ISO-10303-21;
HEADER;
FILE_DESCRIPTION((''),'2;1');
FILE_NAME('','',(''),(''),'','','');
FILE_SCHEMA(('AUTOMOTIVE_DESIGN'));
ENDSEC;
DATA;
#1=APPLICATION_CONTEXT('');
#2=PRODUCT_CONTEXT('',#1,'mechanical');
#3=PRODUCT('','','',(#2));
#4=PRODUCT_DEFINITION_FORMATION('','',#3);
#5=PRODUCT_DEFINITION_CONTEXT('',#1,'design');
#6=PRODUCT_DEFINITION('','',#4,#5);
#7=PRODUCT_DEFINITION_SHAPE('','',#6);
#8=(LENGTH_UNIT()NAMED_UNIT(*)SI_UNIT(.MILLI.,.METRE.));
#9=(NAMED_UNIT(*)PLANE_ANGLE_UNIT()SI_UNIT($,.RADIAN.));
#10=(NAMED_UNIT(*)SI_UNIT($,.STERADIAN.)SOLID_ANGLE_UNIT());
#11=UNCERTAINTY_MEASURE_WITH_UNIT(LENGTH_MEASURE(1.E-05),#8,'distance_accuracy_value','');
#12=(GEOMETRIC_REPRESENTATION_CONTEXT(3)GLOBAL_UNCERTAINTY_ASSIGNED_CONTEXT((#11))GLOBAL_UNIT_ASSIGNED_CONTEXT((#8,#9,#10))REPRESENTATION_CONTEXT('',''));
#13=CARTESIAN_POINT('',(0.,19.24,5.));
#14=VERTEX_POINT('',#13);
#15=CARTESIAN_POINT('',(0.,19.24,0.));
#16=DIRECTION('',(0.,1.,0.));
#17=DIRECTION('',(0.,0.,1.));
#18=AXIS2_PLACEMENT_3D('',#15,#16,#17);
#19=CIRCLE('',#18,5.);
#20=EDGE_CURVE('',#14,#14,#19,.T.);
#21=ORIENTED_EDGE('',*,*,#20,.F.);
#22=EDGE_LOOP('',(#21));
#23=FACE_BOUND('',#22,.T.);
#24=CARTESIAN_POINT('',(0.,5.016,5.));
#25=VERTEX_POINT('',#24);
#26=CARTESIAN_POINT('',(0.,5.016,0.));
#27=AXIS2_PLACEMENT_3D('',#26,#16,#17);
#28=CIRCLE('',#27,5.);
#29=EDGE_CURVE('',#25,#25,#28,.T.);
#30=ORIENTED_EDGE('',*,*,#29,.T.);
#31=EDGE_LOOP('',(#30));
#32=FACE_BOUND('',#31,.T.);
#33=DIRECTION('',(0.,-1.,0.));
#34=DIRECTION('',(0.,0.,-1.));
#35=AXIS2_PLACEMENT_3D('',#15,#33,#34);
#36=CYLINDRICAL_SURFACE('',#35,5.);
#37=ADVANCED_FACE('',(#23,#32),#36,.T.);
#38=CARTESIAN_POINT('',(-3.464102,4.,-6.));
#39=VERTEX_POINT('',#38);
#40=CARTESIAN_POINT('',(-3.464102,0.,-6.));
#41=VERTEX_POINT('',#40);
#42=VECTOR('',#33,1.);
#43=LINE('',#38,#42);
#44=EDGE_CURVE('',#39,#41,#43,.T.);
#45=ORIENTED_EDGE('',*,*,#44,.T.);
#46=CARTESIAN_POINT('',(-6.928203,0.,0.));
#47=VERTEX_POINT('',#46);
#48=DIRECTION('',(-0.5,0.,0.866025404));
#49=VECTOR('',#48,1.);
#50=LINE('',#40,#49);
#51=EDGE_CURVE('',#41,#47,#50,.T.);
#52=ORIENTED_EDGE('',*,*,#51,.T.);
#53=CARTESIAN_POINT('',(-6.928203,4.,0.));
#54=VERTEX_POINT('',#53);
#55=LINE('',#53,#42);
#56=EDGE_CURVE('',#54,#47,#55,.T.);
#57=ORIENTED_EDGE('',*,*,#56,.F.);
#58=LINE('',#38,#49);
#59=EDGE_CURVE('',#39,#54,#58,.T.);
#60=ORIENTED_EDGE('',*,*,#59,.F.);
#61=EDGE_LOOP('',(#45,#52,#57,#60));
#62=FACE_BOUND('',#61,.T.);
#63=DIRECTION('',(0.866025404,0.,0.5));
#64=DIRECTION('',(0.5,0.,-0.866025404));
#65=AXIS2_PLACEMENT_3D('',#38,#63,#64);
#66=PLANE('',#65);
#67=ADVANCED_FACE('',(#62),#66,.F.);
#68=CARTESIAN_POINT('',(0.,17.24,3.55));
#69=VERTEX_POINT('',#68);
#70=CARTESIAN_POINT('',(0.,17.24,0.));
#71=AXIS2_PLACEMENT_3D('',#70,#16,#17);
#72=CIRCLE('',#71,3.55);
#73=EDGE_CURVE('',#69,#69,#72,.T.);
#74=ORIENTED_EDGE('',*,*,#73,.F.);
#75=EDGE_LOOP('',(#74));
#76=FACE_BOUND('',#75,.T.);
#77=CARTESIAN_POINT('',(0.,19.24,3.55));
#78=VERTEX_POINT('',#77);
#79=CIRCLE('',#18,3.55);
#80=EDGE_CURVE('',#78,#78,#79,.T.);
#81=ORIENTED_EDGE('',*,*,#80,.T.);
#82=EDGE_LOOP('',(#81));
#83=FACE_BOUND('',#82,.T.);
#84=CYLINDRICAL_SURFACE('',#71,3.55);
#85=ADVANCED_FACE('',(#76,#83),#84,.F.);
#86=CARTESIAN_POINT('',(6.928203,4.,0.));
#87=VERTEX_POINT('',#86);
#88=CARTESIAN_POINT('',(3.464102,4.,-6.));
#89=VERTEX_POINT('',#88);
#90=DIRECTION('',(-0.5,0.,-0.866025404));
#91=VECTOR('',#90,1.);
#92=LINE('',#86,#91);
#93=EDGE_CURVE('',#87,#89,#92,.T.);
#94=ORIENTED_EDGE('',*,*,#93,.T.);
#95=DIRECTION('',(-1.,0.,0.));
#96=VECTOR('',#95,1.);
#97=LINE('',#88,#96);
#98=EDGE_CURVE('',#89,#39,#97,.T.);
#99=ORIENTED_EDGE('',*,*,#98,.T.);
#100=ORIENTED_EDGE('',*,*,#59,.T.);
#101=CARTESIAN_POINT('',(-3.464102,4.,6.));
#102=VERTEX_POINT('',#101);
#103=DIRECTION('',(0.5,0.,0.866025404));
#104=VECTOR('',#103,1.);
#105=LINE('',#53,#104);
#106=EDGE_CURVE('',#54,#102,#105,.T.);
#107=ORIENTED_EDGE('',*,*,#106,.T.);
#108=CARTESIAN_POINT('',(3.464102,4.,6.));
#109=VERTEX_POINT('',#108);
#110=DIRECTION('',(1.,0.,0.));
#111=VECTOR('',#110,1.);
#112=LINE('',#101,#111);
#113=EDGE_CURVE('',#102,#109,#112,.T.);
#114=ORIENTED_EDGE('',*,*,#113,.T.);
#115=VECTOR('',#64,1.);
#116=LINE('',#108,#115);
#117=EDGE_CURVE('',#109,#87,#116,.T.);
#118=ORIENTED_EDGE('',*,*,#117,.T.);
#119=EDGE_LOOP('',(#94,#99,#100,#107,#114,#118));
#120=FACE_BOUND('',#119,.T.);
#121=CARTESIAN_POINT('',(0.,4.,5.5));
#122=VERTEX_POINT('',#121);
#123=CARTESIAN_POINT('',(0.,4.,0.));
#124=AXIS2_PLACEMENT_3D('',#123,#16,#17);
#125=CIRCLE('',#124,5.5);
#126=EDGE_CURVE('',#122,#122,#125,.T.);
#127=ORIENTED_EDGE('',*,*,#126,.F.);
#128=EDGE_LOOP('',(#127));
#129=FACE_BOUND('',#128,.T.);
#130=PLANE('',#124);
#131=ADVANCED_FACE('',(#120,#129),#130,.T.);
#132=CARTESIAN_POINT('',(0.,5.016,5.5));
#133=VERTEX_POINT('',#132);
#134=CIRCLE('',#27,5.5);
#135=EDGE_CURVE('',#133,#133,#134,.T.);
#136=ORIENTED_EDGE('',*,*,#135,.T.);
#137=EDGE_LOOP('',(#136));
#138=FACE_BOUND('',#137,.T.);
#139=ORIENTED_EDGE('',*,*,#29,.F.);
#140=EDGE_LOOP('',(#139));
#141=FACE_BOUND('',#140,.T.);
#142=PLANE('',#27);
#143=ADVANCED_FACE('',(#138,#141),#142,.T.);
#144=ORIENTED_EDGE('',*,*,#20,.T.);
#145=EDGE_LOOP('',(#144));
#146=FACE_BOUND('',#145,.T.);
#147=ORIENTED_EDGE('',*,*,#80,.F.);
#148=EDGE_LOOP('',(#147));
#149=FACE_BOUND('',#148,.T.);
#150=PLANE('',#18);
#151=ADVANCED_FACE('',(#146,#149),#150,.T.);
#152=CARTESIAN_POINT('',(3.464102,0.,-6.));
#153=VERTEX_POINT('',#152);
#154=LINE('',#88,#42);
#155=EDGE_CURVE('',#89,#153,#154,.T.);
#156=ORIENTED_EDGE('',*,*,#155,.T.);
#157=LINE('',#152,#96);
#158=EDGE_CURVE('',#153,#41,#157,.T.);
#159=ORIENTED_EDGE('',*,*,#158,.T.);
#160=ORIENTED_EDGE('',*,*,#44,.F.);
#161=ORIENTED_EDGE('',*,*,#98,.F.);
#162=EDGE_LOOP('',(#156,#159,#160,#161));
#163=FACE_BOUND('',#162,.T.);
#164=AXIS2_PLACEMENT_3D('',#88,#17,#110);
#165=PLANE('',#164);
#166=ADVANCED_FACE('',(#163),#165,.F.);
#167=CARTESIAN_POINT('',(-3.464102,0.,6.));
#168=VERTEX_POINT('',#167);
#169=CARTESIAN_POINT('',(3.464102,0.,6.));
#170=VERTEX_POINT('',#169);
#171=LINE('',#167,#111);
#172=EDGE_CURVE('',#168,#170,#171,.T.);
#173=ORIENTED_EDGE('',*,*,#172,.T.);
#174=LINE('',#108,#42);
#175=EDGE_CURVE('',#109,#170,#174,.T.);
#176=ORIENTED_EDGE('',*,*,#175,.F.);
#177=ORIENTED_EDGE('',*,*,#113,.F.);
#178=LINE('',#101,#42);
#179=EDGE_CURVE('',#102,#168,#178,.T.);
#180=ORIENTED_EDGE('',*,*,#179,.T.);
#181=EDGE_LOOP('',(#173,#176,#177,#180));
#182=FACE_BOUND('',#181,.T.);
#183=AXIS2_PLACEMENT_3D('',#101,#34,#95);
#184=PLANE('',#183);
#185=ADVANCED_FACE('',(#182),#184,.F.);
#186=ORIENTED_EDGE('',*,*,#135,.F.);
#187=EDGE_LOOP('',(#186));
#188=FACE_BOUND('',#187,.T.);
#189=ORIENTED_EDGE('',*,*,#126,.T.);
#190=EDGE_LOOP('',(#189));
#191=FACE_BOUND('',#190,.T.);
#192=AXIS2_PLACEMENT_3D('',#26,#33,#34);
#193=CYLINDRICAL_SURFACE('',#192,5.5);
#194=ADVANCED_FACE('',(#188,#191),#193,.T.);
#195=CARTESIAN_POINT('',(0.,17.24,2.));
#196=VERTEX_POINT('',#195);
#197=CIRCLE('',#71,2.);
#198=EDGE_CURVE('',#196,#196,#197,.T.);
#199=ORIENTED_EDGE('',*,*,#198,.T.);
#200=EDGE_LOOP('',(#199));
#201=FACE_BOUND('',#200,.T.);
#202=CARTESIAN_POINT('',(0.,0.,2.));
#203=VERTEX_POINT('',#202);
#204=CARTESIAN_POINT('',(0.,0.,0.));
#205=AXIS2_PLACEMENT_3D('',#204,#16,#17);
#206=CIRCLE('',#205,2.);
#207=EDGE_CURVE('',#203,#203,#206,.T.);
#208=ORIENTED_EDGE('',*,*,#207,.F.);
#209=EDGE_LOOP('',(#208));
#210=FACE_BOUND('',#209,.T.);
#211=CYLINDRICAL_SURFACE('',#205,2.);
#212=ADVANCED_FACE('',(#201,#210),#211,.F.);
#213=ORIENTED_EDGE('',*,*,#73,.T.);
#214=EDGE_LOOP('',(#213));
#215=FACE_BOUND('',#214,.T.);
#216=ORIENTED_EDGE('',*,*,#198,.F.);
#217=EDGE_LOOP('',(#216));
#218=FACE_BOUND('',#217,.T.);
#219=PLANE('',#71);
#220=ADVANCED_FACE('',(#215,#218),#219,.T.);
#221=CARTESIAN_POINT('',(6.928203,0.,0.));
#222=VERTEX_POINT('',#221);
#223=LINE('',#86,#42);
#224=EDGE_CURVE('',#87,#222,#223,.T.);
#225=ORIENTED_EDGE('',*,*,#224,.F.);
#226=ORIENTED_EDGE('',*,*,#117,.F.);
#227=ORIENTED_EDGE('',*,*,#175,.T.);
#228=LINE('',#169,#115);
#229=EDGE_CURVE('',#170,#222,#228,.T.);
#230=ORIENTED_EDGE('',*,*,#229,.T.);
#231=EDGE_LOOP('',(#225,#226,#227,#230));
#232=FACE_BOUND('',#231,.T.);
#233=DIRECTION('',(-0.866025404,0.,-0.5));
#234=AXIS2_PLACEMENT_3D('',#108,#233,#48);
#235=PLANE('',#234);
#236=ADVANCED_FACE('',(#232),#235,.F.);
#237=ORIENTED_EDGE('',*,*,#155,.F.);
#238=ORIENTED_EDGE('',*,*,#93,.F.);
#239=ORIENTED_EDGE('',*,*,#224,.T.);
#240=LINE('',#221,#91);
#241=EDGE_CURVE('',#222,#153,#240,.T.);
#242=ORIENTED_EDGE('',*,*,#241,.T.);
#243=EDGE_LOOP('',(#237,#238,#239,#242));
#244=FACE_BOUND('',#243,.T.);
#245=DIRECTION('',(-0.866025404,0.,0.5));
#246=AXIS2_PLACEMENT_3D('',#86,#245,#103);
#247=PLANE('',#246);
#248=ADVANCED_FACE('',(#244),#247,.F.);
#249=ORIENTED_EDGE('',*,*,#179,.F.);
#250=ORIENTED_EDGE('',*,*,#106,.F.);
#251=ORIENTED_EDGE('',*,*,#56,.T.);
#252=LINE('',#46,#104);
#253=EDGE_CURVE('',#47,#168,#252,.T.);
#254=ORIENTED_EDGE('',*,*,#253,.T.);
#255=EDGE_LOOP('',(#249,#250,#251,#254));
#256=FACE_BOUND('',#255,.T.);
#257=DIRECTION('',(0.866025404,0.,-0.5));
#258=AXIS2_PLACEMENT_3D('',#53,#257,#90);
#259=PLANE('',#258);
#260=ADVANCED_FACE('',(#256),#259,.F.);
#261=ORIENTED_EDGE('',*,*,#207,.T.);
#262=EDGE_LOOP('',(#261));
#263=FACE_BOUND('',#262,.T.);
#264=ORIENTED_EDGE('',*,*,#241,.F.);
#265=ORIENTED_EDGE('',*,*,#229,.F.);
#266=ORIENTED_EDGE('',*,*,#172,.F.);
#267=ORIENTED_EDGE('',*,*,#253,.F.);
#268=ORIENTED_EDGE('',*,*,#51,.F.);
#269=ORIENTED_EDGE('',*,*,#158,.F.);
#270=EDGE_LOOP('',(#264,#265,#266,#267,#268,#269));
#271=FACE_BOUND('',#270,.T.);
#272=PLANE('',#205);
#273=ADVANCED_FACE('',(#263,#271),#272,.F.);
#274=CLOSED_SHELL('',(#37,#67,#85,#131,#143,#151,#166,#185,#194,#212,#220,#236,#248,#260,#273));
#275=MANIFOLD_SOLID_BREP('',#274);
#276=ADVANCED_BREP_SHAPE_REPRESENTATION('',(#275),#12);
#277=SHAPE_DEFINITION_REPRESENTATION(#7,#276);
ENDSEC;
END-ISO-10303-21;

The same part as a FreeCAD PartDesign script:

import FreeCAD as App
import Part
import Sketcher

V = App.Vector
Q = App.Units.Quantity

doc = App.newDocument("Part")
body = doc.addObject("PartDesign::Body", "Body")

# Sketch on XZ plane
sketch1 = body.newObject("Sketcher::SketchObject", "Sketch")
sketch1.AttachmentSupport = (doc.getObject("XZ_Plane"), [""])
sketch1.MapMode = "FlatFace"
sketch1.addGeometry([
    Part.LineSegment(V(3, -6, 0), V(-3, -6, 0)),  # 0
    Part.LineSegment(V(-3, -6, 0), V(-7, 0, 0)),  # 1
    Part.LineSegment(V(-7, 0, 0), V(-3, 6, 0)),  # 2
    Part.LineSegment(V(-3, 6, 0), V(3, 6, 0)),  # 3
    Part.LineSegment(V(3, 6, 0), V(7, 0, 0)),  # 4
    Part.LineSegment(V(7, 0, 0), V(3, -6, 0)),  # 5
], False)
sketch1.addConstraint([
    Sketcher.Constraint("Coincident", 0, 2, 1, 1),
    Sketcher.Constraint("Coincident", 1, 2, 2, 1),
    Sketcher.Constraint("Coincident", 2, 2, 3, 1),
    Sketcher.Constraint("Coincident", 3, 2, 4, 1),
    Sketcher.Constraint("Coincident", 4, 2, 5, 1),
    Sketcher.Constraint("Coincident", 5, 2, 0, 1),
    Sketcher.Constraint("Horizontal", 0),
    Sketcher.Constraint("Horizontal", 3),
    Sketcher.Constraint("Symmetric", 0, 2, 3, 2, -1, 1),
    Sketcher.Constraint("Symmetric", 1, 2, 4, 2, -1, 1),
    Sketcher.Constraint("PointOnObject", 1, 2, -1),
    Sketcher.Constraint("Parallel", 2, 5),
    Sketcher.Constraint("Vertical", 0, 2, 2, 2),
    Sketcher.Constraint("Angle", 1, Q("120 deg")),
    Sketcher.Constraint("DistanceY", 0, 2, -1, 1, Q("6 mm")),
    Sketcher.Constraint("DistanceX", 0, 2, -1, 1, Q("3.464102 mm")),
])
pad1 = body.newObject("PartDesign::Pad", "Pad")
pad1.Profile = sketch1
pad1.Length = 4
pad1.Reversed = True

# Sketch on XZ plane
sketch2 = body.newObject("Sketcher::SketchObject", "Sketch001")
sketch2.AttachmentSupport = (doc.getObject("XZ_Plane"), [""])
sketch2.MapMode = "FlatFace"
sketch2.AttachmentOffset = App.Placement(V(0, 0, -4), App.Rotation())
sketch2.addGeometry([
    Part.Circle(V(0, 0, 0), V(0, 0, 1), 6),
    Part.Circle(V(0, 0, 0), V(0, 0, 1), 5),
], False)
sketch2.addConstraint([
    Sketcher.Constraint("Coincident", 0, 3, -1, 1),
    Sketcher.Constraint("Coincident", 1, 3, -1, 1),
    Sketcher.Constraint("Diameter", 0, Q("11 mm")),
    Sketcher.Constraint("Diameter", 1, Q("10 mm")),
])
pad2 = body.newObject("PartDesign::Pad", "Pad001")
pad2.Profile = sketch2
pad2.Length = 1.016
pad2.Reversed = True

# Sketch on XZ plane
sketch3 = body.newObject("Sketcher::SketchObject", "Sketch002")
sketch3.AttachmentSupport = (doc.getObject("XZ_Plane"), [""])
sketch3.MapMode = "FlatFace"
sketch3.AttachmentOffset = App.Placement(V(0, 0, -4), App.Rotation())
sketch3.addGeometry(Part.Circle(V(0, 0, 0), V(0, 0, 1), 5), False)
sketch3.addConstraint([
    Sketcher.Constraint("Coincident", 0, 3, -1, 1),
    Sketcher.Constraint("Diameter", 0, Q("10 mm")),
])
pad3 = body.newObject("PartDesign::Pad", "Pad002")
pad3.Profile = sketch3
pad3.Length = 15.24
pad3.Reversed = True

# Sketch on XZ plane
sketch4 = body.newObject("Sketcher::SketchObject", "Sketch003")
sketch4.AttachmentSupport = (doc.getObject("XZ_Plane"), [""])
sketch4.MapMode = "FlatFace"
sketch4.AttachmentOffset = App.Placement(V(0, 0, -19.24), App.Rotation())
sketch4.addGeometry(Part.Circle(V(0, 0, 0), V(0, 0, 1), 2), False)
sketch4.addConstraint([
    Sketcher.Constraint("Coincident", 0, 3, -1, 1),
    Sketcher.Constraint("Diameter", 0, Q("4 mm")),
])
pocket1 = body.newObject("PartDesign::Pocket", "Pocket")
pocket1.Profile = sketch4
pocket1.Type = "ThroughAll"
pocket1.Reversed = True

# Sketch on XZ plane
sketch5 = body.newObject("Sketcher::SketchObject", "Sketch004")
sketch5.AttachmentSupport = (doc.getObject("XZ_Plane"), [""])
sketch5.MapMode = "FlatFace"
sketch5.AttachmentOffset = App.Placement(V(0, 0, -19.24), App.Rotation())
sketch5.addGeometry([
    Part.Circle(V(0, 0, 0), V(0, 0, 1), 3.5),
    Part.Circle(V(0, 0, 0), V(0, 0, 1), 2),
], False)
sketch5.addConstraint([
    Sketcher.Constraint("Coincident", 0, 3, -1, 1),
    Sketcher.Constraint("Coincident", 1, 3, -1, 1),
    Sketcher.Constraint("Diameter", 1, Q("4 mm")),
    Sketcher.Constraint("Diameter", 0, Q("7.1 mm")),
])
pocket2 = body.newObject("PartDesign::Pocket", "Pocket001")
pocket2.Profile = sketch5
pocket2.Length = 2
pocket2.Reversed = True

doc.recompute()
